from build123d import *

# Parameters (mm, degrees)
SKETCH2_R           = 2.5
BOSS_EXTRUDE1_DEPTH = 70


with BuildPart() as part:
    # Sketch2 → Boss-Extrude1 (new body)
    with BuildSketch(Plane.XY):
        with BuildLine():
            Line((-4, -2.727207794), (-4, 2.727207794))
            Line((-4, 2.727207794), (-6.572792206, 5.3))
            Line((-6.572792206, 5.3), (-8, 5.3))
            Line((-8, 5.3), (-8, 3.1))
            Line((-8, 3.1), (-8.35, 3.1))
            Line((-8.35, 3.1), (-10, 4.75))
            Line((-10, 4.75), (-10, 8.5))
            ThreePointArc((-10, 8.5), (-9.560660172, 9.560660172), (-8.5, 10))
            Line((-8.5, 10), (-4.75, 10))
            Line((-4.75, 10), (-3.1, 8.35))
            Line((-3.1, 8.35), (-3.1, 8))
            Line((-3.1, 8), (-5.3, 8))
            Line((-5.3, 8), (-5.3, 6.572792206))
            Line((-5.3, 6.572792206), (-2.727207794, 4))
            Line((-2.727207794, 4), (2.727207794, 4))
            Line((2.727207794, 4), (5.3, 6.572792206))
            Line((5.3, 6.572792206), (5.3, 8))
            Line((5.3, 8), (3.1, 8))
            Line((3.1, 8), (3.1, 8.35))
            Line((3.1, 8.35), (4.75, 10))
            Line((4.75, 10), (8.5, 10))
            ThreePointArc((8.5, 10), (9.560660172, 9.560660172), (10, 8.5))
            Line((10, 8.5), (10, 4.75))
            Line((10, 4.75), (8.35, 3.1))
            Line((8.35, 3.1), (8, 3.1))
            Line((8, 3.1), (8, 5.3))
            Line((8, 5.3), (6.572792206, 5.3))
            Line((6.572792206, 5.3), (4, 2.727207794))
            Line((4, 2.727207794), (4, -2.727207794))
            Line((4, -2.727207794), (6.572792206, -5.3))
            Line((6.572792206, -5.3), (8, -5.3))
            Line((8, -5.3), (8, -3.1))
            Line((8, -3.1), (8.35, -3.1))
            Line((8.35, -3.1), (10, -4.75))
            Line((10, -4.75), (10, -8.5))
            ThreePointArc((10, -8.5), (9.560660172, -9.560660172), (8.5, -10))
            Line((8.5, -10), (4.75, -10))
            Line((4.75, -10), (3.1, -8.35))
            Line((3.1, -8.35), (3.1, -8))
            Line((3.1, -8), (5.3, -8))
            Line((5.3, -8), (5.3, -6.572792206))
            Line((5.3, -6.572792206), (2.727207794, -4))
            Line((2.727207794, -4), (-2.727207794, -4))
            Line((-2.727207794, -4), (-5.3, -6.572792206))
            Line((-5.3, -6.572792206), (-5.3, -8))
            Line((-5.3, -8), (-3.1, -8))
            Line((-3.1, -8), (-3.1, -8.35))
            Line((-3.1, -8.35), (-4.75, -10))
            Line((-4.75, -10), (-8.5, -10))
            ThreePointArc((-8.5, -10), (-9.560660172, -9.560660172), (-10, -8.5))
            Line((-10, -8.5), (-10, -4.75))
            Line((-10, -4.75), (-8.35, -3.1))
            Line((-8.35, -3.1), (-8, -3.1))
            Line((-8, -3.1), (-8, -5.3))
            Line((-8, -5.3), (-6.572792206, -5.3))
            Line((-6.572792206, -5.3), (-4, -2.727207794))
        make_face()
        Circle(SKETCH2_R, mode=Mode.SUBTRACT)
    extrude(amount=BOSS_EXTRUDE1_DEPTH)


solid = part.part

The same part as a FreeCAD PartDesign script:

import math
import FreeCAD as App
import Part
import Sketcher

doc = App.newDocument("Part")
body = doc.addObject("PartDesign::Body", "Body")

# Sketch on XY plane
sketch1 = doc.addObject("Sketcher::SketchObject", "Sketch")
body.addObject(sketch1)
sketch1.AttachmentSupport = (doc.XY_Plane, [""])
sketch1.MapMode = "FlatFace"
sketch1.addGeometry([
    Part.LineSegment(App.Vector(-4, 2.73, 0), App.Vector(-4, -2.73, 0)),  # 0
    Part.LineSegment(App.Vector(-4, -2.73, 0), App.Vector(-6.57, -5.3, 0)),  # 1
    Part.LineSegment(App.Vector(-6.57, -5.3, 0), App.Vector(-8, -5.3, 0)),  # 2
    Part.LineSegment(App.Vector(-8, -5.3, 0), App.Vector(-8, -3.1, 0)),  # 3
    Part.LineSegment(App.Vector(-8, -3.1, 0), App.Vector(-8.35, -3.1, 0)),  # 4
    Part.LineSegment(App.Vector(-8.35, -3.1, 0), App.Vector(-10, -4.75, 0)),  # 5
    Part.LineSegment(App.Vector(-10, -4.75, 0), App.Vector(-10, -8.5, 0)),  # 6
    Part.ArcOfCircle(Part.Circle(App.Vector(-8.5, -8.5, 0), App.Vector(0, 0, 1), 1.5), math.radians(180), math.radians(270)),  # 7
    Part.LineSegment(App.Vector(-8.5, -10, 0), App.Vector(-4.75, -10, 0)),  # 8
    Part.LineSegment(App.Vector(-4.75, -10, 0), App.Vector(-3.1, -8.35, 0)),  # 9
    Part.LineSegment(App.Vector(-3.1, -8.35, 0), App.Vector(-3.1, -8, 0)),  # 10
    Part.LineSegment(App.Vector(-3.1, -8, 0), App.Vector(-5.3, -8, 0)),  # 11
    Part.LineSegment(App.Vector(-5.3, -8, 0), App.Vector(-5.3, -6.57, 0)),  # 12
    Part.LineSegment(App.Vector(-5.3, -6.57, 0), App.Vector(-2.73, -4, 0)),  # 13
    Part.LineSegment(App.Vector(-2.73, -4, 0), App.Vector(2.73, -4, 0)),  # 14
    Part.LineSegment(App.Vector(2.73, -4, 0), App.Vector(5.3, -6.57, 0)),  # 15
    Part.LineSegment(App.Vector(5.3, -6.57, 0), App.Vector(5.3, -8, 0)),  # 16
    Part.LineSegment(App.Vector(5.3, -8, 0), App.Vector(3.1, -8, 0)),  # 17
    Part.LineSegment(App.Vector(3.1, -8, 0), App.Vector(3.1, -8.35, 0)),  # 18
    Part.LineSegment(App.Vector(3.1, -8.35, 0), App.Vector(4.75, -10, 0)),  # 19
    Part.LineSegment(App.Vector(4.75, -10, 0), App.Vector(8.5, -10, 0)),  # 20
    Part.ArcOfCircle(Part.Circle(App.Vector(8.5, -8.5, 0), App.Vector(0, 0, 1), 1.5), math.radians(-90), math.radians(0)),  # 21
    Part.LineSegment(App.Vector(10, -8.5, 0), App.Vector(10, -4.75, 0)),  # 22
    Part.LineSegment(App.Vector(10, -4.75, 0), App.Vector(8.35, -3.1, 0)),  # 23
    Part.LineSegment(App.Vector(8.35, -3.1, 0), App.Vector(8, -3.1, 0)),  # 24
    Part.LineSegment(App.Vector(8, -3.1, 0), App.Vector(8, -5.3, 0)),  # 25
    Part.LineSegment(App.Vector(8, -5.3, 0), App.Vector(6.57, -5.3, 0)),  # 26
    Part.LineSegment(App.Vector(6.57, -5.3, 0), App.Vector(4, -2.73, 0)),  # 27
    Part.LineSegment(App.Vector(4, -2.73, 0), App.Vector(4, 2.73, 0)),  # 28
    Part.LineSegment(App.Vector(4, 2.73, 0), App.Vector(6.57, 5.3, 0)),  # 29
    Part.LineSegment(App.Vector(6.57, 5.3, 0), App.Vector(8, 5.3, 0)),  # 30
    Part.LineSegment(App.Vector(8, 5.3, 0), App.Vector(8, 3.1, 0)),  # 31
    Part.LineSegment(App.Vector(8, 3.1, 0), App.Vector(8.35, 3.1, 0)),  # 32
    Part.LineSegment(App.Vector(8.35, 3.1, 0), App.Vector(10, 4.75, 0)),  # 33
    Part.LineSegment(App.Vector(10, 4.75, 0), App.Vector(10, 8.5, 0)),  # 34
    Part.ArcOfCircle(Part.Circle(App.Vector(8.5, 8.5, 0), App.Vector(0, 0, 1), 1.5), math.radians(0), math.radians(90)),  # 35
    Part.LineSegment(App.Vector(8.5, 10, 0), App.Vector(4.75, 10, 0)),  # 36
    Part.LineSegment(App.Vector(4.75, 10, 0), App.Vector(3.1, 8.35, 0)),  # 37
    Part.LineSegment(App.Vector(3.1, 8.35, 0), App.Vector(3.1, 8, 0)),  # 38
    Part.LineSegment(App.Vector(3.1, 8, 0), App.Vector(5.3, 8, 0)),  # 39
    Part.LineSegment(App.Vector(5.3, 8, 0), App.Vector(5.3, 6.57, 0)),  # 40
    Part.LineSegment(App.Vector(5.3, 6.57, 0), App.Vector(2.73, 4, 0)),  # 41
    Part.LineSegment(App.Vector(2.73, 4, 0), App.Vector(-2.73, 4, 0)),  # 42
    Part.LineSegment(App.Vector(-2.73, 4, 0), App.Vector(-5.3, 6.57, 0)),  # 43
    Part.LineSegment(App.Vector(-5.3, 6.57, 0), App.Vector(-5.3, 8, 0)),  # 44
    Part.LineSegment(App.Vector(-5.3, 8, 0), App.Vector(-3.1, 8, 0)),  # 45
    Part.LineSegment(App.Vector(-3.1, 8, 0), App.Vector(-3.1, 8.35, 0)),  # 46
    Part.LineSegment(App.Vector(-3.1, 8.35, 0), App.Vector(-4.75, 10, 0)),  # 47
    Part.LineSegment(App.Vector(-4.75, 10, 0), App.Vector(-8.5, 10, 0)),  # 48
    Part.ArcOfCircle(Part.Circle(App.Vector(-8.5, 8.5, 0), App.Vector(0, 0, 1), 1.5), math.radians(90), math.radians(180)),  # 49
    Part.LineSegment(App.Vector(-10, 8.5, 0), App.Vector(-10, 4.75, 0)),  # 50
    Part.LineSegment(App.Vector(-10, 4.75, 0), App.Vector(-8.35, 3.1, 0)),  # 51
    Part.LineSegment(App.Vector(-8.35, 3.1, 0), App.Vector(-8, 3.1, 0)),  # 52
    Part.LineSegment(App.Vector(-8, 3.1, 0), App.Vector(-8, 5.3, 0)),  # 53
    Part.LineSegment(App.Vector(-8, 5.3, 0), App.Vector(-6.57, 5.3, 0)),  # 54
    Part.LineSegment(App.Vector(-6.57, 5.3, 0), App.Vector(-4, 2.73, 0)),  # 55
    Part.Circle(App.Vector(0, 0, 0), App.Vector(0, 0, 1), 2.5),  # 56
], False)
sketch1.addConstraint([
    Sketcher.Constraint("Coincident", 0, 2, 1, 1),
    Sketcher.Constraint("Coincident", 1, 2, 2, 1),
    Sketcher.Constraint("Coincident", 2, 2, 3, 1),
    Sketcher.Constraint("Coincident", 3, 2, 4, 1),
    Sketcher.Constraint("Coincident", 4, 2, 5, 1),
    Sketcher.Constraint("Coincident", 5, 2, 6, 1),
    Sketcher.Constraint("Tangent", 6, 2, 7, 1),
    Sketcher.Constraint("Tangent", 7, 2, 8, 1),
    Sketcher.Constraint("Coincident", 8, 2, 9, 1),
    Sketcher.Constraint("Coincident", 9, 2, 10, 1),
    Sketcher.Constraint("Coincident", 10, 2, 11, 1),
    Sketcher.Constraint("Coincident", 11, 2, 12, 1),
    Sketcher.Constraint("Coincident", 12, 2, 13, 1),
    Sketcher.Constraint("Coincident", 13, 2, 14, 1),
    Sketcher.Constraint("Coincident", 14, 2, 15, 1),
    Sketcher.Constraint("Coincident", 15, 2, 16, 1),
    Sketcher.Constraint("Coincident", 16, 2, 17, 1),
    Sketcher.Constraint("Coincident", 17, 2, 18, 1),
    Sketcher.Constraint("Coincident", 18, 2, 19, 1),
    Sketcher.Constraint("Coincident", 19, 2, 20, 1),
    Sketcher.Constraint("Tangent", 20, 2, 21, 1),
    Sketcher.Constraint("Tangent", 21, 2, 22, 1),
    Sketcher.Constraint("Coincident", 22, 2, 23, 1),
    Sketcher.Constraint("Coincident", 23, 2, 24, 1),
    Sketcher.Constraint("Coincident", 24, 2, 25, 1),
    Sketcher.Constraint("Coincident", 25, 2, 26, 1),
    Sketcher.Constraint("Coincident", 26, 2, 27, 1),
    Sketcher.Constraint("Coincident", 27, 2, 28, 1),
    Sketcher.Constraint("Coincident", 28, 2, 29, 1),
    Sketcher.Constraint("Coincident", 29, 2, 30, 1),
    Sketcher.Constraint("Coincident", 30, 2, 31, 1),
    Sketcher.Constraint("Coincident", 31, 2, 32, 1),
    Sketcher.Constraint("Coincident", 32, 2, 33, 1),
    Sketcher.Constraint("Coincident", 33, 2, 34, 1),
    Sketcher.Constraint("Tangent", 34, 2, 35, 1),
    Sketcher.Constraint("Tangent", 35, 2, 36, 1),
    Sketcher.Constraint("Coincident", 36, 2, 37, 1),
    Sketcher.Constraint("Coincident", 37, 2, 38, 1),
    Sketcher.Constraint("Coincident", 38, 2, 39, 1),
    Sketcher.Constraint("Coincident", 39, 2, 40, 1),
    Sketcher.Constraint("Coincident", 40, 2, 41, 1),
    Sketcher.Constraint("Coincident", 41, 2, 42, 1),
    Sketcher.Constraint("Coincident", 42, 2, 43, 1),
    Sketcher.Constraint("Coincident", 43, 2, 44, 1),
    Sketcher.Constraint("Coincident", 44, 2, 45, 1),
    Sketcher.Constraint("Coincident", 45, 2, 46, 1),
    Sketcher.Constraint("Coincident", 46, 2, 47, 1),
    Sketcher.Constraint("Coincident", 47, 2, 48, 1),
    Sketcher.Constraint("Tangent", 48, 2, 49, 1),
    Sketcher.Constraint("Tangent", 49, 2, 50, 1),
    Sketcher.Constraint("Coincident", 50, 2, 51, 1),
    Sketcher.Constraint("Coincident", 51, 2, 52, 1),
    Sketcher.Constraint("Coincident", 52, 2, 53, 1),
    Sketcher.Constraint("Coincident", 53, 2, 54, 1),
    Sketcher.Constraint("Coincident", 54, 2, 55, 1),
    Sketcher.Constraint("Coincident", 55, 2, 0, 1),
    Sketcher.Constraint("Vertical", 0),
    Sketcher.Constraint("Horizontal", 2),
    Sketcher.Constraint("Vertical", 3),
    Sketcher.Constraint("Horizontal", 4),
    Sketcher.Constraint("Vertical", 6),
    Sketcher.Constraint("Horizontal", 8),
    Sketcher.Constraint("Vertical", 10),
    Sketcher.Constraint("Horizontal", 11),
    Sketcher.Constraint("Vertical", 12),
    Sketcher.Constraint("Horizontal", 14),
    Sketcher.Constraint("Vertical", 16),
    Sketcher.Constraint("Horizontal", 17),
    Sketcher.Constraint("Vertical", 18),
    Sketcher.Constraint("Horizontal", 20),
    Sketcher.Constraint("Vertical", 22),
    Sketcher.Constraint("Horizontal", 24),
    Sketcher.Constraint("Vertical", 25),
    Sketcher.Constraint("Horizontal", 26),
    Sketcher.Constraint("Vertical", 28),
    Sketcher.Constraint("Horizontal", 30),
    Sketcher.Constraint("Vertical", 31),
    Sketcher.Constraint("Horizontal", 32),
    Sketcher.Constraint("Vertical", 34),
    Sketcher.Constraint("Horizontal", 36),
    Sketcher.Constraint("Vertical", 38),
    Sketcher.Constraint("Horizontal", 39),
    Sketcher.Constraint("Vertical", 40),
    Sketcher.Constraint("Horizontal", 42),
    Sketcher.Constraint("Vertical", 44),
    Sketcher.Constraint("Horizontal", 45),
    Sketcher.Constraint("Vertical", 46),
    Sketcher.Constraint("Horizontal", 48),
    Sketcher.Constraint("Vertical", 50),
    Sketcher.Constraint("Horizontal", 52),
    Sketcher.Constraint("Vertical", 53),
    Sketcher.Constraint("Horizontal", 54),
    Sketcher.Constraint("Coincident", 56, 3, -1, 1),
    Sketcher.Constraint("Equal", 7, 21),
    Sketcher.Constraint("Equal", 21, 35),
    Sketcher.Constraint("Equal", 35, 49),
    Sketcher.Constraint("Symmetric", 7, 3, 35, 3, -1, 1),
    Sketcher.Constraint("Symmetric", 21, 3, 49, 3, -1, 1),
    Sketcher.Constraint("Symmetric", 0, 2, 28, 2, -1, 1),
    Sketcher.Constraint("Symmetric", 1, 2, 29, 2, -1, 1),
    Sketcher.Constraint("Symmetric", 3, 2, 31, 2, -1, 1),
    Sketcher.Constraint("Symmetric", 9, 2, 37, 2, -1, 1),
    Sketcher.Constraint("Symmetric", 11, 2, 39, 2, -1, 1),
    Sketcher.Constraint("Symmetric", 13, 2, 41, 2, -1, 1),
    Sketcher.Constraint("Symmetric", 15, 2, 43, 2, -1, 1),
    Sketcher.Constraint("Symmetric", 17, 2, 45, 2, -1, 1),
    Sketcher.Constraint("Symmetric", 23, 2, 51, 2, -1, 1),
    Sketcher.Constraint("Symmetric", 25, 2, 53, 2, -1, 1),
    Sketcher.Constraint("Symmetric", 7, 3, 21, 3, -2),
    Sketcher.Constraint("Symmetric", 12, 2, 15, 2, -2),
    Sketcher.Constraint("Symmetric", 10, 2, 17, 2, -2),
    Sketcher.Constraint("Symmetric", 4, 2, 23, 2, -2),
    Sketcher.Constraint("Symmetric", 2, 2, 25, 2, -2),
    Sketcher.Constraint("Parallel", 1, 5),
    Sketcher.Constraint("Parallel", 5, 9),
    Sketcher.Constraint("Parallel", 9, 13),
    Sketcher.Constraint("Perpendicular", 13, 15),
    Sketcher.Constraint("Parallel", 15, 19),
    Sketcher.Constraint("Parallel", 19, 23),
    Sketcher.Constraint("Parallel", 23, 27),
    Sketcher.Constraint("Parallel", 29, 33),
    Sketcher.Constraint("Parallel", 33, 37),
    Sketcher.Constraint("Parallel", 37, 41),
    Sketcher.Constraint("Perpendicular", 41, 43),
    Sketcher.Constraint("Parallel", 43, 47),
    Sketcher.Constraint("Parallel", 47, 51),
    Sketcher.Constraint("Parallel", 51, 55),
    Sketcher.Constraint("Horizontal", 9, 2, 18, 2),
    Sketcher.Constraint("Horizontal", 5, 2, 22, 2),
    Sketcher.Constraint("Horizontal", 0, 2, 27, 2),
    Sketcher.Constraint("Horizontal", 37, 2, 46, 2),
    Sketcher.Constraint("Horizontal", 33, 2, 50, 2),
    Sketcher.Constraint("Horizontal", 28, 2, 55, 2),
    Sketcher.Constraint("Equal", 42, 0),
    Sketcher.Constraint("Equal", 45, 3),
    Sketcher.Constraint("Equal", 48, 6),
    Sketcher.Constraint("Equal", 52, 10),
    Sketcher.Constraint("Equal", 54, 12),
    Sketcher.Constraint("Equal", 5, 9),
    Sketcher.Constraint("Equal", 1, 13),
    Sketcher.Constraint("Diameter", 56, 5.0),
    Sketcher.Constraint("Radius", 7, 1.5),
    Sketcher.Constraint("DistanceX", 11, 2, 11, 1, 2.2),
    Sketcher.Constraint("DistanceX", 0, 2, -1, 1, 4.0),
    Sketcher.Constraint("DistanceX", 2, 2, -1, 1, 8.0),
    Sketcher.Constraint("DistanceX", 5, 2, -1, 1, 10.0),
    Sketcher.Constraint("DistanceX", 4, 2, 4, 1, 0.35),
    Sketcher.Constraint("DistanceX", 8, 1, 8, 2, 3.75),
    Sketcher.Constraint("DistanceX", 2, 2, 2, 1, 1.427208),
])
pad1 = doc.addObject("PartDesign::Pad", "Pad")
body.addObject(pad1)
pad1.Profile = sketch1
pad1.Length = 70

doc.recompute()
